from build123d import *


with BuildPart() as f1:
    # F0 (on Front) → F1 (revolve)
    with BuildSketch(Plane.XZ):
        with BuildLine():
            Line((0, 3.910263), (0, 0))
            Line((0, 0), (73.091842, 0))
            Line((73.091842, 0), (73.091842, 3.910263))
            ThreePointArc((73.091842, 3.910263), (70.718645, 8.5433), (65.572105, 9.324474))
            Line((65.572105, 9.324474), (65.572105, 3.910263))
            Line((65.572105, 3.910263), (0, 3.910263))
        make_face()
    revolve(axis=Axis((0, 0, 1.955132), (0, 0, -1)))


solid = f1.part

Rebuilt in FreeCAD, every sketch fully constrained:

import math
import FreeCAD as App
import Part
import Sketcher

doc = App.newDocument("Part")
params = doc.addObject("Spreadsheet::Sheet", "Params")
for row, (alias, value) in enumerate([
    ("revolution_angle", "360 deg"),
], start=1):
    params.set(f"A{row}", alias)
    params.set(f"B{row}", "=" + value)
    params.setAlias(f"B{row}", alias)

body = doc.addObject("PartDesign::Body", "Body")

sketch1 = body.newObject("Sketcher::SketchObject", "Sketch")
sketch1.AttachmentSupport = (doc.getObject("XZ_Plane"), [""])
sketch1.MapMode = "FlatFace"
sketch1.addGeometry(Part.LineSegment(App.Vector(0, 3.9, 0), App.Vector(0, 0, 0)), False)
sketch1.addGeometry(Part.LineSegment(App.Vector(0, 0, 0), App.Vector(73.1, 0, 0)), False)
sketch1.addGeometry(Part.LineSegment(App.Vector(73.1, 0, 0), App.Vector(73.1, 3.9, 0)), False)
sketch1.addGeometry(Part.ArcOfCircle(Part.Circle(App.Vector(67.4, 3.9, 0), App.Vector(0, 0, 1), 5.7), math.radians(0), math.radians(108)), False)
sketch1.addGeometry(Part.LineSegment(App.Vector(65.6, 9.3, 0), App.Vector(65.6, 3.9, 0)), False)
sketch1.addGeometry(Part.LineSegment(App.Vector(65.6, 3.9, 0), App.Vector(0, 3.9, 0)), False)
sketch1.addConstraint(Sketcher.Constraint("Coincident", 0, 2, 1, 1))
sketch1.addConstraint(Sketcher.Constraint("Coincident", 1, 2, 2, 1))
sketch1.addConstraint(Sketcher.Constraint("Tangent", 2, 2, 3, 1))
sketch1.addConstraint(Sketcher.Constraint("Coincident", 3, 2, 4, 1))
sketch1.addConstraint(Sketcher.Constraint("Coincident", 4, 2, 5, 1))
sketch1.addConstraint(Sketcher.Constraint("Coincident", 5, 2, 0, 1))
sketch1.addConstraint(Sketcher.Constraint("Vertical", 0))
sketch1.addConstraint(Sketcher.Constraint("Horizontal", 1))
sketch1.addConstraint(Sketcher.Constraint("Vertical", 2))
sketch1.addConstraint(Sketcher.Constraint("Vertical", 4))
sketch1.addConstraint(Sketcher.Constraint("Horizontal", 5))
sketch1.addConstraint(Sketcher.Constraint("Coincident", 0, 2, -1, 1))
sketch1.addConstraint(Sketcher.Constraint("Horizontal", 2, 2, 4, 2))
sketch1.addConstraint(Sketcher.Constraint("Radius", 3, 5.708984))
sketch1.addConstraint(Sketcher.Constraint("DistanceX", 1, 1, 1, 2, 73.091842))
sketch1.addConstraint(Sketcher.Constraint("DistanceY", 4, 2, 4, 1, 5.414211))
sketch1.addConstraint(Sketcher.Constraint("DistanceY", 0, 2, 0, 1, 3.910263))
revolution = body.newObject("PartDesign::Revolution", "Revolution")
revolution.Profile = sketch1
revolution.ReferenceAxis = (sketch1, ["V_Axis"])
revolution.setExpression("Angle", "Params.revolution_angle")

doc.recompute()
